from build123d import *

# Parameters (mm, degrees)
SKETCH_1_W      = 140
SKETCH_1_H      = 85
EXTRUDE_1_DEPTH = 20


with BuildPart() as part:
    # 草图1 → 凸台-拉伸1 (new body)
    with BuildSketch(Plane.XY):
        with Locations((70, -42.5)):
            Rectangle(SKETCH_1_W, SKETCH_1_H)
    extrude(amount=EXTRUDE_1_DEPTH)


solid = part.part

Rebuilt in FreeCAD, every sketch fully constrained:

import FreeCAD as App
import Part
import Sketcher

doc = App.newDocument("Part")
body = doc.addObject("PartDesign::Body", "Body")

# Sketch on XY plane
sketch1 = body.newObject("Sketcher::SketchObject", "Sketch")
sketch1.AttachmentSupport = (doc.getObject("XY_Plane"), [""])
sketch1.MapMode = "FlatFace"
sketch1.addGeometry([
    Part.LineSegment(App.Vector(0, 0, 0), App.Vector(0, -85, 0)),
    Part.LineSegment(App.Vector(0, -85, 0), App.Vector(140, -85, 0)),
    Part.LineSegment(App.Vector(140, -85, 0), App.Vector(140, 0, 0)),
    Part.LineSegment(App.Vector(140, 0, 0), App.Vector(0, 0, 0)),
], False)
sketch1.addConstraint([
    Sketcher.Constraint("Coincident", 0, 2, 1, 1),
    Sketcher.Constraint("Coincident", 1, 2, 2, 1),
    Sketcher.Constraint("Coincident", 2, 2, 3, 1),
    Sketcher.Constraint("Coincident", 3, 2, 0, 1),
    Sketcher.Constraint("Vertical", 0),
    Sketcher.Constraint("Horizontal", 1),
    Sketcher.Constraint("Vertical", 2),
    Sketcher.Constraint("Horizontal", 3),
    Sketcher.Constraint("Coincident", 3, 2, -1, 1),
    Sketcher.Constraint("DistanceX", 1, 1, 1, 2, 140.0),
    Sketcher.Constraint("DistanceY", 0, 2, 0, 1, 85.0),
])
pad1 = body.newObject("PartDesign::Pad", "Pad")
pad1.Profile = sketch1
pad1.Length = 20

doc.recompute()
